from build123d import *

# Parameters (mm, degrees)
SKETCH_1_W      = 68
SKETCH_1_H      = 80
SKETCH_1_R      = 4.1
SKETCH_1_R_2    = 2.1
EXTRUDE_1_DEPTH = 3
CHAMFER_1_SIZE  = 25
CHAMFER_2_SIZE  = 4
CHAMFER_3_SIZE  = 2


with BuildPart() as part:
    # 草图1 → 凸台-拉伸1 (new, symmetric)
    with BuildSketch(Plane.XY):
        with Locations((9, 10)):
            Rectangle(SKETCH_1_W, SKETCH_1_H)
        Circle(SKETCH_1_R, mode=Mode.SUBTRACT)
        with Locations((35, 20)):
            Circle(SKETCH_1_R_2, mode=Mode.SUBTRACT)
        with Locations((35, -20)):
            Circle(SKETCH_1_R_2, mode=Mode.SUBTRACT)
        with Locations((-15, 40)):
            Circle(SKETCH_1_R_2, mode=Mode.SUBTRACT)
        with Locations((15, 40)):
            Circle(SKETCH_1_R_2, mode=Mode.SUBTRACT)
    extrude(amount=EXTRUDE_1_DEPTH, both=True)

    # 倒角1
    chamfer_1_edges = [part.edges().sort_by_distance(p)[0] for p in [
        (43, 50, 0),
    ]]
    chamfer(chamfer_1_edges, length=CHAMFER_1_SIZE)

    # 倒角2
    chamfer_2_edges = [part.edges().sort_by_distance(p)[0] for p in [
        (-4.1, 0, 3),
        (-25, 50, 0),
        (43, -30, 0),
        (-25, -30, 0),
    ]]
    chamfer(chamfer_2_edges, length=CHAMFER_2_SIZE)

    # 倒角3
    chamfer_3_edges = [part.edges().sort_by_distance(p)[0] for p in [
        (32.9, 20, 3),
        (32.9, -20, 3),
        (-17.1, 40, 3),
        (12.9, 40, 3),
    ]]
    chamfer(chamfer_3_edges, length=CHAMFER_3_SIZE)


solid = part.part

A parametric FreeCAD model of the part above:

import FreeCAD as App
import Part
import Sketcher
from FreeCAD import Vector


def edges_at(feature, points):
    """Names of the edges that pass closest to the given points."""
    edges = feature.Shape.Edges
    near = lambda p: min(range(len(edges)), key=lambda i: edges[i].distToShape(Part.Vertex(*p))[0])
    return sorted({f"Edge{near(p) + 1}" for p in points})


def add_polygon(sketch, points):
    """Adds a closed chain of lines whose ends are joined by coincident constraints."""
    first, n = sketch.GeometryCount, len(points)
    for a, b in zip(points, points[1:] + points[:1]):
        sketch.addGeometry(Part.LineSegment(App.Vector(*a, 0), App.Vector(*b, 0)), False)
    for i in range(n):
        sketch.addConstraint(Sketcher.Constraint("Coincident", first + i, 2, first + (i + 1) % n, 1))

doc = App.newDocument("Part")
body = doc.addObject("PartDesign::Body", "Body")

sketch1 = body.newObject("Sketcher::SketchObject", "Sketch")
sketch1.AttachmentSupport = (doc.getObject("XY_Plane"), [""])
sketch1.MapMode = "FlatFace"
add_polygon(sketch1, [(-25, 50), (-25, -30), (43, -30), (43, 50)])
sketch1.addGeometry(Part.Circle(Vector(0, 0, 0), Vector(0, 0, 1), 4.1), False)
sketch1.addGeometry(Part.Circle(Vector(35, -20, 0), Vector(0, 0, 1), 2.1), False)
sketch1.addGeometry(Part.Circle(Vector(-15, 40, 0), Vector(0, 0, 1), 2.1), False)
sketch1.addGeometry(Part.Circle(Vector(35, 20, 0), Vector(0, 0, 1), 2.1), False)
sketch1.addGeometry(Part.Circle(Vector(15, 40, 0), Vector(0, 0, 1), 2.1), False)
sketch1.addConstraint([
    Sketcher.Constraint("Vertical", 0),
    Sketcher.Constraint("Horizontal", 1),
    Sketcher.Constraint("Vertical", 2),
    Sketcher.Constraint("Horizontal", 3),
    Sketcher.Constraint("Coincident", 4, 3, -1, 1),
    Sketcher.Constraint("Equal", 5, 6),
    Sketcher.Constraint("Equal", 6, 7),
    Sketcher.Constraint("Equal", 7, 8),
    Sketcher.Constraint("Symmetric", 6, 3, 8, 3, -2),
    Sketcher.Constraint("Symmetric", 5, 3, 7, 3, -1),
    Sketcher.Constraint("Diameter", 4, 8.2),
    Sketcher.Constraint("Diameter", 5, 4.2),
    Sketcher.Constraint("DistanceX", 1, 1, 1, 2, 68.0),
    Sketcher.Constraint("DistanceY", 0, 2, 0, 1, 80.0),
    Sketcher.Constraint("DistanceX", -1, 1, 5, 3, 35.0),
    Sketcher.Constraint("DistanceY", 5, 3, -1, 1, 20.0),
    Sketcher.Constraint("DistanceX", 6, 3, -1, 1, 15.0),
    Sketcher.Constraint("DistanceY", -1, 1, 6, 3, 40.0),
    Sketcher.Constraint("DistanceX", 0, 2, -1, 1, 25.0),
    Sketcher.Constraint("DistanceY", 0, 2, -1, 1, 30.0),
])
pad1 = body.newObject("PartDesign::Pad", "Pad")
pad1.Profile = sketch1
pad1.Length = 6
pad1.Midplane = True
doc.recompute()

chamfer = body.newObject("PartDesign::Chamfer", "Chamfer")
chamfer.Base = (pad1, edges_at(pad1, [(43, 50, 0)]))
chamfer.Size = 25
doc.recompute()

chamfer2 = body.newObject("PartDesign::Chamfer", "Chamfer001")
chamfer2.Base = (chamfer, edges_at(chamfer, [
    (-4.1, 0, 3),
    (-25, 50, 0),
    (43, -30, 0),
    (-25, -30, 0),
]))
chamfer2.Size = 4
doc.recompute()

chamfer3 = body.newObject("PartDesign::Chamfer", "Chamfer002")
chamfer3.Base = (chamfer2, edges_at(chamfer2, [
    (32.9, 20, 3),
    (32.9, -20, 3),
    (-17.1, 40, 3),
    (12.9, 40, 3),
]))
chamfer3.Size = 2

doc.recompute()
